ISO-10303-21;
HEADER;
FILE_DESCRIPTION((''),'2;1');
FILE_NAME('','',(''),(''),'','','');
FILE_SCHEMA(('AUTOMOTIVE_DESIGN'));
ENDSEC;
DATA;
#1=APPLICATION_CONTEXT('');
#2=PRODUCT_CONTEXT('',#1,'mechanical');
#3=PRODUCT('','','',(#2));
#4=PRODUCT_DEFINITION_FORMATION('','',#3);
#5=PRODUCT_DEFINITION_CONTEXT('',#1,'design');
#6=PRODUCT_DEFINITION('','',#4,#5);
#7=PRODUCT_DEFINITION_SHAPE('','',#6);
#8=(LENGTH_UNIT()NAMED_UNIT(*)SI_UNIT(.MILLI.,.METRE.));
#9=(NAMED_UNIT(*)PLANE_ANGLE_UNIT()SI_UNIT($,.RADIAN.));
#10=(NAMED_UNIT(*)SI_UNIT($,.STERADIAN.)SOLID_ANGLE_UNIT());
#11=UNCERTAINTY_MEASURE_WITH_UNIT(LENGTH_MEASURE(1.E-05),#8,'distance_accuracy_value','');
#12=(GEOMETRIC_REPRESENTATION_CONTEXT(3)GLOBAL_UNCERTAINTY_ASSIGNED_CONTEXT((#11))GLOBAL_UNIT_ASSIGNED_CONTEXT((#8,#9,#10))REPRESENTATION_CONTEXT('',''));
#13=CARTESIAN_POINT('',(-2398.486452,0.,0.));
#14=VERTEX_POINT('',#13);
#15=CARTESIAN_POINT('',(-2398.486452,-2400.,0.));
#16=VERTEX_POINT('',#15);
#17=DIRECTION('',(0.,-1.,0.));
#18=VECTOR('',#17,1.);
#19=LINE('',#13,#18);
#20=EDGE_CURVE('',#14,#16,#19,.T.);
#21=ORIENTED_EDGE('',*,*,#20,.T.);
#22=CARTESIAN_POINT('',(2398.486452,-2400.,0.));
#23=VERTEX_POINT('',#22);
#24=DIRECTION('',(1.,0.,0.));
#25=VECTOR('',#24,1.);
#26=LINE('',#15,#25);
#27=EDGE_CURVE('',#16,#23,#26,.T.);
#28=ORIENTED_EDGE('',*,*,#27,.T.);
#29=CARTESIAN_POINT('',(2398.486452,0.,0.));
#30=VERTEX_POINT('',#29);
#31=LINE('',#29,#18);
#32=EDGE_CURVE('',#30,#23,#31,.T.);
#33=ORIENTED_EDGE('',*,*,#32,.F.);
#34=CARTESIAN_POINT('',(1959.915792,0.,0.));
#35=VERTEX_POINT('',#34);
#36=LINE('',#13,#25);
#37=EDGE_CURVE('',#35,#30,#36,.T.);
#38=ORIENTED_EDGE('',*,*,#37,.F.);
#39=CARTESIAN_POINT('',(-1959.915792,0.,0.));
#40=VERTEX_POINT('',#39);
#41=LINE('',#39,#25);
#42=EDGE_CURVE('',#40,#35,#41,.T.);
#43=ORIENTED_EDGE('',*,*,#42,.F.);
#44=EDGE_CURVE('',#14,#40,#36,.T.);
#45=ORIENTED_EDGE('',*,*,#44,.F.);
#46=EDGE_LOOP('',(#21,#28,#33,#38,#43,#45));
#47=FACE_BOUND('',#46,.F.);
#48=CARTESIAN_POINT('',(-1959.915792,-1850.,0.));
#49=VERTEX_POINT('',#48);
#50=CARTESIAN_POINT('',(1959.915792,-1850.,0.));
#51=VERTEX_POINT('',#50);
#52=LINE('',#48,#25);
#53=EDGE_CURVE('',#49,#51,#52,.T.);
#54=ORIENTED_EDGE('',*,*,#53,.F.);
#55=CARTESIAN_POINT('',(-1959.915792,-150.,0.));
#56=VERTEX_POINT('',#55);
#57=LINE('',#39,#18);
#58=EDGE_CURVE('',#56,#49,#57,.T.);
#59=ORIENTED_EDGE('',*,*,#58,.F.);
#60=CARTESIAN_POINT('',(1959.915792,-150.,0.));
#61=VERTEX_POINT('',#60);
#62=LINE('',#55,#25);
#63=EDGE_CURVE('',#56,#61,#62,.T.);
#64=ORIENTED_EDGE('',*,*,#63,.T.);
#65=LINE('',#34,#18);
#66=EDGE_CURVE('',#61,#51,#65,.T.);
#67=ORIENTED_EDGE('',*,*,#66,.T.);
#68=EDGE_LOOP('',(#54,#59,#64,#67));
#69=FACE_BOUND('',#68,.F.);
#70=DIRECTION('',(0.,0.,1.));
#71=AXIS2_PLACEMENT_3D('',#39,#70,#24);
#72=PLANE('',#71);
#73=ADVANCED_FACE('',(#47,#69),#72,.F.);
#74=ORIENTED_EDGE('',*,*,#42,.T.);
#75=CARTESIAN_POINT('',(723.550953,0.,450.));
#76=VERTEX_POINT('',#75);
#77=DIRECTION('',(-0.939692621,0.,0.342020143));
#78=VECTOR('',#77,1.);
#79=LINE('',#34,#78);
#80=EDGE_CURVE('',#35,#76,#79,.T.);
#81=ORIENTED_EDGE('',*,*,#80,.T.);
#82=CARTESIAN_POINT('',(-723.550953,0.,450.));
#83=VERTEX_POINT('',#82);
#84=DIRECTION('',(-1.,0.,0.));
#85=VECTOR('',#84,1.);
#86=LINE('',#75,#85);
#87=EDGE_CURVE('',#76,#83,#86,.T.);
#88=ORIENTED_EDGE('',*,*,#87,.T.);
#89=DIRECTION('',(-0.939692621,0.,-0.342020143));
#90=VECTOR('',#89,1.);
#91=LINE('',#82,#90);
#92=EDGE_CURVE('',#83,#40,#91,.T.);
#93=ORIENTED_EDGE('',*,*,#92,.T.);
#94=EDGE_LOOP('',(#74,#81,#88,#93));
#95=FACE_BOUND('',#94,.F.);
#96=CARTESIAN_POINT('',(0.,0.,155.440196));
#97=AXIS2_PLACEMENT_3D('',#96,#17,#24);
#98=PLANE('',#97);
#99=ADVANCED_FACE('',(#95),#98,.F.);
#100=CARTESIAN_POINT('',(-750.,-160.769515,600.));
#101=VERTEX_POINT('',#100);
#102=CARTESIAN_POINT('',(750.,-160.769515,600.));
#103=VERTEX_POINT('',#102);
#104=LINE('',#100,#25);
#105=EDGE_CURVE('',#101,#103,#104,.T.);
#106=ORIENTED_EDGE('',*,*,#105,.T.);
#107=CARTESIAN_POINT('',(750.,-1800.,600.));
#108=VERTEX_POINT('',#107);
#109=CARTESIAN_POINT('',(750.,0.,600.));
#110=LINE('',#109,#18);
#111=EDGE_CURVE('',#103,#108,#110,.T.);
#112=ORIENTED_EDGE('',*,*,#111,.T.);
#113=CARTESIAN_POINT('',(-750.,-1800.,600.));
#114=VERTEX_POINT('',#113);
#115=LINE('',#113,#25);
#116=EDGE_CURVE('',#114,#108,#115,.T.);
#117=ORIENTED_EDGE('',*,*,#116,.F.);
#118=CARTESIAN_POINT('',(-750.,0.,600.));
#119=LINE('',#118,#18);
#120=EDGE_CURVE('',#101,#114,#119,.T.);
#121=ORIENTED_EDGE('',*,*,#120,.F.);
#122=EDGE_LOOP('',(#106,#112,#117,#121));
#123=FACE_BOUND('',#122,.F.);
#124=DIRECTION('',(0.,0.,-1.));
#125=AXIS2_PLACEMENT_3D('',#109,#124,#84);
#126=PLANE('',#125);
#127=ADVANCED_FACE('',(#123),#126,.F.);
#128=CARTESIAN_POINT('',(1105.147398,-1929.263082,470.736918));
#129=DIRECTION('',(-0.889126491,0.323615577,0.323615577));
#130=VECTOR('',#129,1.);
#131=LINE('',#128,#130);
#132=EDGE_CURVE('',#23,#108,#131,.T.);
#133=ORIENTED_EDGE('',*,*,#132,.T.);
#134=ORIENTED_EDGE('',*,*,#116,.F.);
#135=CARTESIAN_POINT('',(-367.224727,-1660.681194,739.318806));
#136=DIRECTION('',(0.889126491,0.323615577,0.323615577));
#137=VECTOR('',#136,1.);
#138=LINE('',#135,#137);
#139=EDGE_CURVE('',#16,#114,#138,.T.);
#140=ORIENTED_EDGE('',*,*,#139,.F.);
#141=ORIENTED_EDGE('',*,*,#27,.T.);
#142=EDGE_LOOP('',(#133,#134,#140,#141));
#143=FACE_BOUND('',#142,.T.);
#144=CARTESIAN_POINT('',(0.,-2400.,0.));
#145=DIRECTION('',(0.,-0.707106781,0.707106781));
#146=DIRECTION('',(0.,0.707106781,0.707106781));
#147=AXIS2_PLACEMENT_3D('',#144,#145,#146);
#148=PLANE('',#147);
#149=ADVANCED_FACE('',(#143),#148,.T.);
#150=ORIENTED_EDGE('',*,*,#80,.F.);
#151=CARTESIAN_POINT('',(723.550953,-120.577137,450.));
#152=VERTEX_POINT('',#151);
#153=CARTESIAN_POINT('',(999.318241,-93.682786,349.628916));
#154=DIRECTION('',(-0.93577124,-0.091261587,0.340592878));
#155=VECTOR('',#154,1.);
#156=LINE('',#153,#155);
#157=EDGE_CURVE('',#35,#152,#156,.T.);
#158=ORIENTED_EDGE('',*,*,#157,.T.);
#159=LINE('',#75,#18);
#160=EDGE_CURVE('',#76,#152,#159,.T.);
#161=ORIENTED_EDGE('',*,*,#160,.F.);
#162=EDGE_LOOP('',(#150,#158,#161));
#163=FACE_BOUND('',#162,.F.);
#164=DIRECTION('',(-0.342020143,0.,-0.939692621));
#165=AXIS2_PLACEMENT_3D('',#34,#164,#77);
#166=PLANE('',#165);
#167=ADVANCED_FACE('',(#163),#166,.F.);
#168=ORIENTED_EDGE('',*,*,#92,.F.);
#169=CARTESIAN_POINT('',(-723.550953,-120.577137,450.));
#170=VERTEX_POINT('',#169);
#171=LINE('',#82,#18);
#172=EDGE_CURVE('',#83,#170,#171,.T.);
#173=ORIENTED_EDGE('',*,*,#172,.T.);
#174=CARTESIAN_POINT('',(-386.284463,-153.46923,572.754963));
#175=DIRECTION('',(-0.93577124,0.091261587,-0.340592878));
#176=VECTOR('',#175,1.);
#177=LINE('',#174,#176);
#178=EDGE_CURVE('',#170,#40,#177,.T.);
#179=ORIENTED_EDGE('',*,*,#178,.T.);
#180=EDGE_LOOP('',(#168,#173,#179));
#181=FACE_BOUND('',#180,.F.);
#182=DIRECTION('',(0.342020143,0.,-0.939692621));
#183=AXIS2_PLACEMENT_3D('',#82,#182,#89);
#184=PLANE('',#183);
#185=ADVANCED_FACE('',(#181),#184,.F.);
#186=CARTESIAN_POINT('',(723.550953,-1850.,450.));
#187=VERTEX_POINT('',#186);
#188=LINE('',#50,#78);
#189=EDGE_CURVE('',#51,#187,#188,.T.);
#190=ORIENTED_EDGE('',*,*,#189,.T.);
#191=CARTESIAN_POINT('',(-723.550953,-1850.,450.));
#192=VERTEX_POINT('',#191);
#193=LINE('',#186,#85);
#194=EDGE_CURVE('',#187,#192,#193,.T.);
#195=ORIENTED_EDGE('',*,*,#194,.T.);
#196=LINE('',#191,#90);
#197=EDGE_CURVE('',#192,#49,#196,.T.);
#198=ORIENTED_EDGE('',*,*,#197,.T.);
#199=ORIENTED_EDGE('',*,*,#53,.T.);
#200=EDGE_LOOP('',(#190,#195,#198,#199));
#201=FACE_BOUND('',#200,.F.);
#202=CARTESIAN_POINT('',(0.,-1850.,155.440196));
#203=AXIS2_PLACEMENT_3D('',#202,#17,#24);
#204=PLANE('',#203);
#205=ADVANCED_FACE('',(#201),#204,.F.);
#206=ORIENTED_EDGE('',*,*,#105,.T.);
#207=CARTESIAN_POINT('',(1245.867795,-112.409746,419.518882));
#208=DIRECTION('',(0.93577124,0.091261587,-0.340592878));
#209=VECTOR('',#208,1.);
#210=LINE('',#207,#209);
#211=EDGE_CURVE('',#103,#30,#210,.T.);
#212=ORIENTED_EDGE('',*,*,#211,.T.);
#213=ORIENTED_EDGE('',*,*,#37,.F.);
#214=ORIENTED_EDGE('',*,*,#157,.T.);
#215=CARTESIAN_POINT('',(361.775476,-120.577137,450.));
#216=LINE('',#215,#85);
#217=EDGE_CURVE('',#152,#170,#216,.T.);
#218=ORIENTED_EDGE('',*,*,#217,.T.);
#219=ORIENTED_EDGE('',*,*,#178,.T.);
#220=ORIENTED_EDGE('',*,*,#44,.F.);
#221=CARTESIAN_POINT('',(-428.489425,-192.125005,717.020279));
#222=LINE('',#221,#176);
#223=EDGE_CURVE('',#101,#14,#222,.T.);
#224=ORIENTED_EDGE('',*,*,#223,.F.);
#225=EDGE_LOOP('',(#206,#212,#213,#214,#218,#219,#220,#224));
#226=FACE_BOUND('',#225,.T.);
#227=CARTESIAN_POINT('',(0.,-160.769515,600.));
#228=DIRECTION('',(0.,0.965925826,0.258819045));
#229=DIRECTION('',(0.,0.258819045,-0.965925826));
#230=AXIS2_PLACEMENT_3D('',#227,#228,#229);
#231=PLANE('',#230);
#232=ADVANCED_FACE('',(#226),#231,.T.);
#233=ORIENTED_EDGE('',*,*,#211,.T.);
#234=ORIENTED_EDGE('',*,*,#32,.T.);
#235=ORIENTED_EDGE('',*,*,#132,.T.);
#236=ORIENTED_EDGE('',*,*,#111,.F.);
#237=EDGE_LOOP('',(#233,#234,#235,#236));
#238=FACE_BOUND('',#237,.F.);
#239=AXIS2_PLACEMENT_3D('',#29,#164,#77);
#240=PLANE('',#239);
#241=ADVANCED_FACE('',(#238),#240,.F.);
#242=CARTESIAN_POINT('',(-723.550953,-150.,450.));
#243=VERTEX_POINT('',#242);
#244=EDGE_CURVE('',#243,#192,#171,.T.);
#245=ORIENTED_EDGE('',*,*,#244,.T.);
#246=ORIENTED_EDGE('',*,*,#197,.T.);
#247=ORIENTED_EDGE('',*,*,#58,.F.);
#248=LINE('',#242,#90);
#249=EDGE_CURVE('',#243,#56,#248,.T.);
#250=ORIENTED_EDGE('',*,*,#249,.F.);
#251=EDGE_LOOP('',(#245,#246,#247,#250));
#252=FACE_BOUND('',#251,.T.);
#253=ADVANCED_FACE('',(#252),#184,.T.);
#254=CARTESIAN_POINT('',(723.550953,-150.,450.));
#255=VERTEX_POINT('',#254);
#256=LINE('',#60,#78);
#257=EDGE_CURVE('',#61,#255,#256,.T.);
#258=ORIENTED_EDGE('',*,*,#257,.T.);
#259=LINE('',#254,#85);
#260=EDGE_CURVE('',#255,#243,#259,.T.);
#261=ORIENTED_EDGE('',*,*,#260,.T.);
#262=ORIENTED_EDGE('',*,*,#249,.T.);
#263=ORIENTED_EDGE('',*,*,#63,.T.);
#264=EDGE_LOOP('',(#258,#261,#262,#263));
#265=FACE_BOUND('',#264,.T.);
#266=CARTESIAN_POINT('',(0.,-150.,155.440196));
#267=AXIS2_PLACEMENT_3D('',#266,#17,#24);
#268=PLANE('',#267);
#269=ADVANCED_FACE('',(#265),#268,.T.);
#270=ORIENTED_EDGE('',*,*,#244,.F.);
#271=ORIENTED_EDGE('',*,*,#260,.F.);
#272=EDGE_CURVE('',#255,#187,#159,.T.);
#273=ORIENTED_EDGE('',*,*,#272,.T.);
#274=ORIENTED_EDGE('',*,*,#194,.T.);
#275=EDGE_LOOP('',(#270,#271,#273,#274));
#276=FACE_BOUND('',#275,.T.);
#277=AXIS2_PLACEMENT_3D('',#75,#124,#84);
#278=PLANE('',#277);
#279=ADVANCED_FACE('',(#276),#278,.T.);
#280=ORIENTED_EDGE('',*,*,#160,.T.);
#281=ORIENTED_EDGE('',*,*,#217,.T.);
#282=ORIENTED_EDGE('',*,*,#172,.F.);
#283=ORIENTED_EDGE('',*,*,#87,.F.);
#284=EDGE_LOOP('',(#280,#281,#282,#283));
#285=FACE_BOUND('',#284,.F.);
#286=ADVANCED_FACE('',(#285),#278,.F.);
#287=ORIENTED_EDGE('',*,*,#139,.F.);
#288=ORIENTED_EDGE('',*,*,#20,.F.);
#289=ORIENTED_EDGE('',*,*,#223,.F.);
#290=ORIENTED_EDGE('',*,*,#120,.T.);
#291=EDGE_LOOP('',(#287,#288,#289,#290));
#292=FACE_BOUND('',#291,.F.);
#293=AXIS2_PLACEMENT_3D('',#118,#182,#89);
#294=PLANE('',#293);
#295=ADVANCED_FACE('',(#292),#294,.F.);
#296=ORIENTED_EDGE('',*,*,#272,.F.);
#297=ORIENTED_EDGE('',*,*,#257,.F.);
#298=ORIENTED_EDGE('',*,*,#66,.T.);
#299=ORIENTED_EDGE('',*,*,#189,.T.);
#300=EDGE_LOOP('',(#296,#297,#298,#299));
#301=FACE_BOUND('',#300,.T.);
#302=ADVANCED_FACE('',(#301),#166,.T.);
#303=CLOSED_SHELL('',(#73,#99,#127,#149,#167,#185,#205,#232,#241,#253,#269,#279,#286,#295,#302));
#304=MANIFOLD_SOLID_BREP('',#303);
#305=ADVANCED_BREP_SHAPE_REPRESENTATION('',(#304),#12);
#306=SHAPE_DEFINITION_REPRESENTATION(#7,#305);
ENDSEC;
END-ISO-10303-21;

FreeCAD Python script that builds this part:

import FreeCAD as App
import Part
import Sketcher

V = App.Vector
Q = App.Units.Quantity


def add_polygon(sketch, points):
    """Adds a closed chain of lines whose ends are joined by coincident constraints."""
    first, n = sketch.GeometryCount, len(points)
    for a, b in zip(points, points[1:] + points[:1]):
        sketch.addGeometry(Part.LineSegment(App.Vector(*a, 0), App.Vector(*b, 0)), False)
    for i in range(n):
        sketch.addConstraint(Sketcher.Constraint("Coincident", first + i, 2, first + (i + 1) % n, 1))

doc = App.newDocument("Part")
body = doc.addObject("PartDesign::Body", "Body")

# Sketch on XZ plane
sketch1 = body.newObject("Sketcher::SketchObject", "Sketch")
sketch1.AttachmentSupport = (doc.getObject("XZ_Plane"), [""])
sketch1.MapMode = "FlatFace"
add_polygon(sketch1, [(2398.486452, 0), (750, 600), (-750, 600), (-2398.486452, 0)])  # lines 0-3
sketch1.addConstraint([
    Sketcher.Constraint("Horizontal", 1),
    Sketcher.Constraint("Horizontal", 3),
    Sketcher.Constraint("Symmetric", 2, 2, 3, 2, -1, 1),
    Sketcher.Constraint("Equal", 0, 2),
    Sketcher.Constraint("DistanceX", 1, 2, 1, 1, 1500.0),
    Sketcher.Constraint("Angle", 0, Q("160 deg")),
    Sketcher.Constraint("DistanceY", -1, 1, 0, 2, 600.0),
])
pad1 = body.newObject("PartDesign::Pad", "Pad")
pad1.Profile = sketch1
pad1.Length = 2400

# Sketch on YZ plane
sketch2 = body.newObject("Sketcher::SketchObject", "Sketch001")
sketch2.AttachmentSupport = (doc.getObject("YZ_Plane"), [""])
sketch2.MapMode = "FlatFace"
add_polygon(sketch2, [(-2400, 600), (-2400, 0), (-1800, 600)])  # lines 0-2
add_polygon(sketch2, [(-160.769515, 600), (0, 0), (0, 600)])  # lines 3-5
sketch2.addConstraint([
    Sketcher.Constraint("Vertical", 0),
    Sketcher.Constraint("Horizontal", 2),
    Sketcher.Constraint("Vertical", 4),
    Sketcher.Constraint("Horizontal", 5),
    Sketcher.Constraint("Coincident", 3, 2, -1, 1),
    Sketcher.Constraint("PointOnObject", 0, 2, -1),
    Sketcher.Constraint("Horizontal", 2, 2, 4, 2),
    Sketcher.Constraint("Equal", 2, 0),
    Sketcher.Constraint("DistanceX", 2, 2, 2, 1, 600.0),
    Sketcher.Constraint("Angle", 3, Q("-75 deg")),
    Sketcher.Constraint("DistanceX", 0, 2, -1, 1, 2400.0),
])
pocket1 = body.newObject("PartDesign::Pocket", "Pocket")
pocket1.Profile = sketch2
pocket1.Type = "ThroughAll"
pocket1.Midplane = True

# Sketch on XZ plane
sketch3 = body.newObject("Sketcher::SketchObject", "Sketch002")
sketch3.AttachmentSupport = (doc.getObject("XZ_Plane"), [""])
sketch3.MapMode = "FlatFace"
add_polygon(sketch3, [(-723.550953, 450), (-1959.915792, 0), (1959.915792, 0), (723.550953, 450)])  # lines 0-3
sketch3.addConstraint([
    Sketcher.Constraint("Horizontal", 1),
    Sketcher.Constraint("Horizontal", 3),
    Sketcher.Constraint("Symmetric", 0, 2, 1, 2, -1, 1),
    Sketcher.Constraint("Equal", 0, 2),
    Sketcher.Constraint("Angle", 0, Q("-160 deg")),
    Sketcher.Constraint("DistanceY", -1, 1, 2, 2, 450.0),
    Sketcher.Constraint("DistanceX", 1, 1, 1, 2, 3919.831583),
])
pocket2 = body.newObject("PartDesign::Pocket", "Pocket001")
pocket2.Profile = sketch3
pocket2.Type = "TwoLengths"
pocket2.Length = 25
pocket2.Length2 = 1850

# Sketch on XZ plane
sketch4 = body.newObject("Sketcher::SketchObject", "Sketch003")
sketch4.AttachmentSupport = (doc.getObject("XZ_Plane"), [""])
sketch4.MapMode = "FlatFace"
add_polygon(sketch4, [(-723.550953, 450), (-1959.915792, 0), (1959.915792, 0), (723.550953, 450)])  # lines 0-3
sketch4.addConstraint([
    Sketcher.Constraint("Horizontal", 1),
    Sketcher.Constraint("Horizontal", 3),
    Sketcher.Constraint("Symmetric", 0, 2, 1, 2, -1, 1),
    Sketcher.Constraint("Equal", 0, 2),
    Sketcher.Constraint("Angle", 0, Q("-160 deg")),
    Sketcher.Constraint("DistanceY", -1, 1, 2, 2, 450.0),
    Sketcher.Constraint("DistanceX", 1, 1, 1, 2, 3919.831583),
])
pad2 = body.newObject("PartDesign::Pad", "Pad001")
pad2.Profile = sketch4
pad2.Length = 150

doc.recompute()
